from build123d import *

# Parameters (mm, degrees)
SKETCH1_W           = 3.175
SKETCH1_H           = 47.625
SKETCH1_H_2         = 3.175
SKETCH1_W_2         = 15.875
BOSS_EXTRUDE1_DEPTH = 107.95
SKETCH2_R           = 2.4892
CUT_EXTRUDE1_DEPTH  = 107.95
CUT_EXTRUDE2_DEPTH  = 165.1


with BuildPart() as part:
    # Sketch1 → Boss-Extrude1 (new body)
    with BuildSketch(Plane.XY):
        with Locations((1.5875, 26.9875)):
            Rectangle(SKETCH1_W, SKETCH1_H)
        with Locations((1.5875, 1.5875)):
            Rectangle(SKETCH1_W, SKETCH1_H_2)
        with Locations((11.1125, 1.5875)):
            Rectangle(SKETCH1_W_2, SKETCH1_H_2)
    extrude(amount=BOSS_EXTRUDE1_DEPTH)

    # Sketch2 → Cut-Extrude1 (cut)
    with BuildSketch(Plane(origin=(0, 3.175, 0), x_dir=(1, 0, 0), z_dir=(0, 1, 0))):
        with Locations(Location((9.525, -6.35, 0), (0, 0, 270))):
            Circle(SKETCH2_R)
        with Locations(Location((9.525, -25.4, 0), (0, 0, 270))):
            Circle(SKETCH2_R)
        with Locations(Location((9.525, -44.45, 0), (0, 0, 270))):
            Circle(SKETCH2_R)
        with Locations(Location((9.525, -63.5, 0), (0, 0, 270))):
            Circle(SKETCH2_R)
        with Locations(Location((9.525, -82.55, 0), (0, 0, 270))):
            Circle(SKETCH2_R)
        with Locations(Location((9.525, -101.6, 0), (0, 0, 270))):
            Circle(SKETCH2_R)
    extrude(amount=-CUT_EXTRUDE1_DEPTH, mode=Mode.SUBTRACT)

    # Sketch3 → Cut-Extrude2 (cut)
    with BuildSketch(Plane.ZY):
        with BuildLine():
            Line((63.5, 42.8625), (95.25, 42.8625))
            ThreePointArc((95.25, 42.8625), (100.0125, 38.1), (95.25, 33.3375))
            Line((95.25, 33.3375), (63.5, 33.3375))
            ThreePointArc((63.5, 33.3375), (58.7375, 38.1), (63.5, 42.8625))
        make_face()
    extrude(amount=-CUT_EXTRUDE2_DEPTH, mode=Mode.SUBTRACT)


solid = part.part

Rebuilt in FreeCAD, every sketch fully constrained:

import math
import FreeCAD as App
import Part
import Sketcher

V = App.Vector
Q = App.Units.Quantity


def add_polygon(sketch, points):
    """Adds a closed chain of lines whose ends are joined by coincident constraints."""
    first, n = sketch.GeometryCount, len(points)
    for a, b in zip(points, points[1:] + points[:1]):
        sketch.addGeometry(Part.LineSegment(App.Vector(*a, 0), App.Vector(*b, 0)), False)
    for i in range(n):
        sketch.addConstraint(Sketcher.Constraint("Coincident", first + i, 2, first + (i + 1) % n, 1))

doc = App.newDocument("Part")
params = doc.addObject("Spreadsheet::Sheet", "Params")
for row, (alias, value) in enumerate([
    ("sketch1_height", "2 in"),
    ("sketch1_width", "0.75 in"),
    ("sketch1_width2", "0.625 in"),
    ("pad1_length", "4.25 in"),
    ("sketch2_diameter", "0.196 in"),
    ("pocket1_length", "4.25 in"),
    ("sketch3_radius", "0.1875 in"),
    ("sketch3_height", "1.25 in"),
    ("pocket2_length", "6.5 in"),
], start=1):
    params.set(f"A{row}", alias)
    params.set(f"B{row}", "=" + value)
    params.setAlias(f"B{row}", alias)

body = doc.addObject("PartDesign::Body", "Body")

# Sketch on XY plane
sketch1 = body.newObject("Sketcher::SketchObject", "Sketch")
sketch1.AttachmentSupport = (doc.getObject("XY_Plane"), [""])
sketch1.MapMode = "FlatFace"
add_polygon(sketch1, [(0, 50.8), (0, 0), (19.1, 0), (19.1, 3.2), (3.2, 3.2), (3.2, 50.8)])  # lines 0-5
sketch1.addConstraint([
    Sketcher.Constraint("Vertical", 0),
    Sketcher.Constraint("Horizontal", 1),
    Sketcher.Constraint("Vertical", 2),
    Sketcher.Constraint("Horizontal", 3),
    Sketcher.Constraint("Vertical", 4),
    Sketcher.Constraint("Horizontal", 5),
    Sketcher.Constraint("Coincident", 0, 2, -1, 1),
    Sketcher.Constraint("Equal", 5, 2),
    Sketcher.Constraint("DistanceY", 0, 2, 0, 1, Q("2 in")),
    Sketcher.Constraint("DistanceX", 1, 1, 1, 2, Q("0.75 in")),
    Sketcher.Constraint("DistanceX", 3, 2, 3, 1, Q("0.625 in")),
])
sketch1.setExpression("Constraints[14]", "Params.sketch1_height")
sketch1.setExpression("Constraints[15]", "Params.sketch1_width")
sketch1.setExpression("Constraints[16]", "Params.sketch1_width2")
pad1 = body.newObject("PartDesign::Pad", "Pad")
pad1.Profile = sketch1
pad1.setExpression("Length", "Params.pad1_length")

# Sketch on XZ plane
sketch2 = body.newObject("Sketcher::SketchObject", "Sketch001")
sketch2.AttachmentSupport = (doc.getObject("XZ_Plane"), [""])
sketch2.MapMode = "FlatFace"
sketch2.AttachmentOffset = App.Placement(V(0, 0, -0.125 * 25.4), App.Rotation())
sketch2.addGeometry([
    Part.Circle(V(9.5, 6.3, 0), V(0, 0, 1), 2.5),  # 0
    Part.Circle(V(9.5, 25.4, 0), V(0, 0, 1), 2.5),  # 1
    Part.Circle(V(9.5, 44.5, 0), V(0, 0, 1), 2.5),  # 2
    Part.Circle(V(9.5, 63.5, 0), V(0, 0, 1), 2.5),  # 3
    Part.Circle(V(9.5, 82.5, 0), V(0, 0, 1), 2.5),  # 4
    Part.Circle(V(9.5, 101.6, 0), V(0, 0, 1), 2.5),  # 5
], False)
sketch2.addConstraint([
    Sketcher.Constraint("Equal", 0, 1),
    Sketcher.Constraint("Equal", 1, 2),
    Sketcher.Constraint("Equal", 2, 3),
    Sketcher.Constraint("Equal", 3, 4),
    Sketcher.Constraint("Equal", 4, 5),
    Sketcher.Constraint("Vertical", 0, 3, 1, 3),
    Sketcher.Constraint("Vertical", 1, 3, 2, 3),
    Sketcher.Constraint("Vertical", 2, 3, 3, 3),
    Sketcher.Constraint("Vertical", 3, 3, 4, 3),
    Sketcher.Constraint("Vertical", 4, 3, 5, 3),
    Sketcher.Constraint("Diameter", 0, Q("0.196 in")),
    Sketcher.Constraint("DistanceY", -1, 1, 1, 3, Q("1 in")),
    Sketcher.Constraint("DistanceY", -1, 1, 5, 3, Q("4 in")),
    Sketcher.Constraint("DistanceY", 0, 3, 4, 3, Q("3 in")),
    Sketcher.Constraint("DistanceY", -1, 1, 3, 3, Q("2.5 in")),
    Sketcher.Constraint("DistanceY", 0, 3, 2, 3, Q("1.5 in")),
    Sketcher.Constraint("DistanceY", -1, 1, 0, 3, Q("0.25 in")),
    Sketcher.Constraint("DistanceX", -1, 1, 0, 3, Q("0.375 in")),
])
sketch2.setExpression("Constraints[10]", "Params.sketch2_diameter")
pocket1 = body.newObject("PartDesign::Pocket", "Pocket")
pocket1.Profile = sketch2
pocket1.setExpression("Length", "Params.pocket1_length")
pocket1.Reversed = True

# Sketch on YZ plane
sketch3 = body.newObject("Sketcher::SketchObject", "Sketch002")
sketch3.AttachmentSupport = (doc.getObject("YZ_Plane"), [""])
sketch3.MapMode = "FlatFace"
sketch3.addGeometry([
    Part.LineSegment(V(42.9, 95.2, 0), V(42.9, 63.5, 0)),
    Part.ArcOfCircle(Part.Circle(V(38.1, 63.5, 0), V(0, 0, 1), 4.8), math.radians(180), math.radians(360)),
    Part.LineSegment(V(33.3, 63.5, 0), V(33.3, 95.2, 0)),
    Part.ArcOfCircle(Part.Circle(V(38.1, 95.2, 0), V(0, 0, 1), 4.8), math.radians(0), math.radians(180)),
], False)
sketch3.addConstraint([
    Sketcher.Constraint("Tangent", 0, 2, 1, 2),
    Sketcher.Constraint("Tangent", 1, 1, 2, 1),
    Sketcher.Constraint("Tangent", 2, 2, 3, 2),
    Sketcher.Constraint("Tangent", 3, 1, 0, 1),
    Sketcher.Constraint("Vertical", 0),
    Sketcher.Constraint("Vertical", 2),
    Sketcher.Constraint("Radius", 1, Q("0.1875 in")),
    Sketcher.Constraint("DistanceY", 0, 2, 0, 1, Q("1.25 in")),
    Sketcher.Constraint("DistanceX", -1, 1, 1, 3, Q("1.5 in")),
    Sketcher.Constraint("DistanceY", -1, 1, 1, 3, Q("2.5 in")),
])
sketch3.setExpression("Constraints[6]", "Params.sketch3_radius")
sketch3.setExpression("Constraints[7]", "Params.sketch3_height")
pocket2 = body.newObject("PartDesign::Pocket", "Pocket001")
pocket2.Profile = sketch3
pocket2.setExpression("Length", "Params.pocket2_length")
pocket2.Reversed = True

doc.recompute()
